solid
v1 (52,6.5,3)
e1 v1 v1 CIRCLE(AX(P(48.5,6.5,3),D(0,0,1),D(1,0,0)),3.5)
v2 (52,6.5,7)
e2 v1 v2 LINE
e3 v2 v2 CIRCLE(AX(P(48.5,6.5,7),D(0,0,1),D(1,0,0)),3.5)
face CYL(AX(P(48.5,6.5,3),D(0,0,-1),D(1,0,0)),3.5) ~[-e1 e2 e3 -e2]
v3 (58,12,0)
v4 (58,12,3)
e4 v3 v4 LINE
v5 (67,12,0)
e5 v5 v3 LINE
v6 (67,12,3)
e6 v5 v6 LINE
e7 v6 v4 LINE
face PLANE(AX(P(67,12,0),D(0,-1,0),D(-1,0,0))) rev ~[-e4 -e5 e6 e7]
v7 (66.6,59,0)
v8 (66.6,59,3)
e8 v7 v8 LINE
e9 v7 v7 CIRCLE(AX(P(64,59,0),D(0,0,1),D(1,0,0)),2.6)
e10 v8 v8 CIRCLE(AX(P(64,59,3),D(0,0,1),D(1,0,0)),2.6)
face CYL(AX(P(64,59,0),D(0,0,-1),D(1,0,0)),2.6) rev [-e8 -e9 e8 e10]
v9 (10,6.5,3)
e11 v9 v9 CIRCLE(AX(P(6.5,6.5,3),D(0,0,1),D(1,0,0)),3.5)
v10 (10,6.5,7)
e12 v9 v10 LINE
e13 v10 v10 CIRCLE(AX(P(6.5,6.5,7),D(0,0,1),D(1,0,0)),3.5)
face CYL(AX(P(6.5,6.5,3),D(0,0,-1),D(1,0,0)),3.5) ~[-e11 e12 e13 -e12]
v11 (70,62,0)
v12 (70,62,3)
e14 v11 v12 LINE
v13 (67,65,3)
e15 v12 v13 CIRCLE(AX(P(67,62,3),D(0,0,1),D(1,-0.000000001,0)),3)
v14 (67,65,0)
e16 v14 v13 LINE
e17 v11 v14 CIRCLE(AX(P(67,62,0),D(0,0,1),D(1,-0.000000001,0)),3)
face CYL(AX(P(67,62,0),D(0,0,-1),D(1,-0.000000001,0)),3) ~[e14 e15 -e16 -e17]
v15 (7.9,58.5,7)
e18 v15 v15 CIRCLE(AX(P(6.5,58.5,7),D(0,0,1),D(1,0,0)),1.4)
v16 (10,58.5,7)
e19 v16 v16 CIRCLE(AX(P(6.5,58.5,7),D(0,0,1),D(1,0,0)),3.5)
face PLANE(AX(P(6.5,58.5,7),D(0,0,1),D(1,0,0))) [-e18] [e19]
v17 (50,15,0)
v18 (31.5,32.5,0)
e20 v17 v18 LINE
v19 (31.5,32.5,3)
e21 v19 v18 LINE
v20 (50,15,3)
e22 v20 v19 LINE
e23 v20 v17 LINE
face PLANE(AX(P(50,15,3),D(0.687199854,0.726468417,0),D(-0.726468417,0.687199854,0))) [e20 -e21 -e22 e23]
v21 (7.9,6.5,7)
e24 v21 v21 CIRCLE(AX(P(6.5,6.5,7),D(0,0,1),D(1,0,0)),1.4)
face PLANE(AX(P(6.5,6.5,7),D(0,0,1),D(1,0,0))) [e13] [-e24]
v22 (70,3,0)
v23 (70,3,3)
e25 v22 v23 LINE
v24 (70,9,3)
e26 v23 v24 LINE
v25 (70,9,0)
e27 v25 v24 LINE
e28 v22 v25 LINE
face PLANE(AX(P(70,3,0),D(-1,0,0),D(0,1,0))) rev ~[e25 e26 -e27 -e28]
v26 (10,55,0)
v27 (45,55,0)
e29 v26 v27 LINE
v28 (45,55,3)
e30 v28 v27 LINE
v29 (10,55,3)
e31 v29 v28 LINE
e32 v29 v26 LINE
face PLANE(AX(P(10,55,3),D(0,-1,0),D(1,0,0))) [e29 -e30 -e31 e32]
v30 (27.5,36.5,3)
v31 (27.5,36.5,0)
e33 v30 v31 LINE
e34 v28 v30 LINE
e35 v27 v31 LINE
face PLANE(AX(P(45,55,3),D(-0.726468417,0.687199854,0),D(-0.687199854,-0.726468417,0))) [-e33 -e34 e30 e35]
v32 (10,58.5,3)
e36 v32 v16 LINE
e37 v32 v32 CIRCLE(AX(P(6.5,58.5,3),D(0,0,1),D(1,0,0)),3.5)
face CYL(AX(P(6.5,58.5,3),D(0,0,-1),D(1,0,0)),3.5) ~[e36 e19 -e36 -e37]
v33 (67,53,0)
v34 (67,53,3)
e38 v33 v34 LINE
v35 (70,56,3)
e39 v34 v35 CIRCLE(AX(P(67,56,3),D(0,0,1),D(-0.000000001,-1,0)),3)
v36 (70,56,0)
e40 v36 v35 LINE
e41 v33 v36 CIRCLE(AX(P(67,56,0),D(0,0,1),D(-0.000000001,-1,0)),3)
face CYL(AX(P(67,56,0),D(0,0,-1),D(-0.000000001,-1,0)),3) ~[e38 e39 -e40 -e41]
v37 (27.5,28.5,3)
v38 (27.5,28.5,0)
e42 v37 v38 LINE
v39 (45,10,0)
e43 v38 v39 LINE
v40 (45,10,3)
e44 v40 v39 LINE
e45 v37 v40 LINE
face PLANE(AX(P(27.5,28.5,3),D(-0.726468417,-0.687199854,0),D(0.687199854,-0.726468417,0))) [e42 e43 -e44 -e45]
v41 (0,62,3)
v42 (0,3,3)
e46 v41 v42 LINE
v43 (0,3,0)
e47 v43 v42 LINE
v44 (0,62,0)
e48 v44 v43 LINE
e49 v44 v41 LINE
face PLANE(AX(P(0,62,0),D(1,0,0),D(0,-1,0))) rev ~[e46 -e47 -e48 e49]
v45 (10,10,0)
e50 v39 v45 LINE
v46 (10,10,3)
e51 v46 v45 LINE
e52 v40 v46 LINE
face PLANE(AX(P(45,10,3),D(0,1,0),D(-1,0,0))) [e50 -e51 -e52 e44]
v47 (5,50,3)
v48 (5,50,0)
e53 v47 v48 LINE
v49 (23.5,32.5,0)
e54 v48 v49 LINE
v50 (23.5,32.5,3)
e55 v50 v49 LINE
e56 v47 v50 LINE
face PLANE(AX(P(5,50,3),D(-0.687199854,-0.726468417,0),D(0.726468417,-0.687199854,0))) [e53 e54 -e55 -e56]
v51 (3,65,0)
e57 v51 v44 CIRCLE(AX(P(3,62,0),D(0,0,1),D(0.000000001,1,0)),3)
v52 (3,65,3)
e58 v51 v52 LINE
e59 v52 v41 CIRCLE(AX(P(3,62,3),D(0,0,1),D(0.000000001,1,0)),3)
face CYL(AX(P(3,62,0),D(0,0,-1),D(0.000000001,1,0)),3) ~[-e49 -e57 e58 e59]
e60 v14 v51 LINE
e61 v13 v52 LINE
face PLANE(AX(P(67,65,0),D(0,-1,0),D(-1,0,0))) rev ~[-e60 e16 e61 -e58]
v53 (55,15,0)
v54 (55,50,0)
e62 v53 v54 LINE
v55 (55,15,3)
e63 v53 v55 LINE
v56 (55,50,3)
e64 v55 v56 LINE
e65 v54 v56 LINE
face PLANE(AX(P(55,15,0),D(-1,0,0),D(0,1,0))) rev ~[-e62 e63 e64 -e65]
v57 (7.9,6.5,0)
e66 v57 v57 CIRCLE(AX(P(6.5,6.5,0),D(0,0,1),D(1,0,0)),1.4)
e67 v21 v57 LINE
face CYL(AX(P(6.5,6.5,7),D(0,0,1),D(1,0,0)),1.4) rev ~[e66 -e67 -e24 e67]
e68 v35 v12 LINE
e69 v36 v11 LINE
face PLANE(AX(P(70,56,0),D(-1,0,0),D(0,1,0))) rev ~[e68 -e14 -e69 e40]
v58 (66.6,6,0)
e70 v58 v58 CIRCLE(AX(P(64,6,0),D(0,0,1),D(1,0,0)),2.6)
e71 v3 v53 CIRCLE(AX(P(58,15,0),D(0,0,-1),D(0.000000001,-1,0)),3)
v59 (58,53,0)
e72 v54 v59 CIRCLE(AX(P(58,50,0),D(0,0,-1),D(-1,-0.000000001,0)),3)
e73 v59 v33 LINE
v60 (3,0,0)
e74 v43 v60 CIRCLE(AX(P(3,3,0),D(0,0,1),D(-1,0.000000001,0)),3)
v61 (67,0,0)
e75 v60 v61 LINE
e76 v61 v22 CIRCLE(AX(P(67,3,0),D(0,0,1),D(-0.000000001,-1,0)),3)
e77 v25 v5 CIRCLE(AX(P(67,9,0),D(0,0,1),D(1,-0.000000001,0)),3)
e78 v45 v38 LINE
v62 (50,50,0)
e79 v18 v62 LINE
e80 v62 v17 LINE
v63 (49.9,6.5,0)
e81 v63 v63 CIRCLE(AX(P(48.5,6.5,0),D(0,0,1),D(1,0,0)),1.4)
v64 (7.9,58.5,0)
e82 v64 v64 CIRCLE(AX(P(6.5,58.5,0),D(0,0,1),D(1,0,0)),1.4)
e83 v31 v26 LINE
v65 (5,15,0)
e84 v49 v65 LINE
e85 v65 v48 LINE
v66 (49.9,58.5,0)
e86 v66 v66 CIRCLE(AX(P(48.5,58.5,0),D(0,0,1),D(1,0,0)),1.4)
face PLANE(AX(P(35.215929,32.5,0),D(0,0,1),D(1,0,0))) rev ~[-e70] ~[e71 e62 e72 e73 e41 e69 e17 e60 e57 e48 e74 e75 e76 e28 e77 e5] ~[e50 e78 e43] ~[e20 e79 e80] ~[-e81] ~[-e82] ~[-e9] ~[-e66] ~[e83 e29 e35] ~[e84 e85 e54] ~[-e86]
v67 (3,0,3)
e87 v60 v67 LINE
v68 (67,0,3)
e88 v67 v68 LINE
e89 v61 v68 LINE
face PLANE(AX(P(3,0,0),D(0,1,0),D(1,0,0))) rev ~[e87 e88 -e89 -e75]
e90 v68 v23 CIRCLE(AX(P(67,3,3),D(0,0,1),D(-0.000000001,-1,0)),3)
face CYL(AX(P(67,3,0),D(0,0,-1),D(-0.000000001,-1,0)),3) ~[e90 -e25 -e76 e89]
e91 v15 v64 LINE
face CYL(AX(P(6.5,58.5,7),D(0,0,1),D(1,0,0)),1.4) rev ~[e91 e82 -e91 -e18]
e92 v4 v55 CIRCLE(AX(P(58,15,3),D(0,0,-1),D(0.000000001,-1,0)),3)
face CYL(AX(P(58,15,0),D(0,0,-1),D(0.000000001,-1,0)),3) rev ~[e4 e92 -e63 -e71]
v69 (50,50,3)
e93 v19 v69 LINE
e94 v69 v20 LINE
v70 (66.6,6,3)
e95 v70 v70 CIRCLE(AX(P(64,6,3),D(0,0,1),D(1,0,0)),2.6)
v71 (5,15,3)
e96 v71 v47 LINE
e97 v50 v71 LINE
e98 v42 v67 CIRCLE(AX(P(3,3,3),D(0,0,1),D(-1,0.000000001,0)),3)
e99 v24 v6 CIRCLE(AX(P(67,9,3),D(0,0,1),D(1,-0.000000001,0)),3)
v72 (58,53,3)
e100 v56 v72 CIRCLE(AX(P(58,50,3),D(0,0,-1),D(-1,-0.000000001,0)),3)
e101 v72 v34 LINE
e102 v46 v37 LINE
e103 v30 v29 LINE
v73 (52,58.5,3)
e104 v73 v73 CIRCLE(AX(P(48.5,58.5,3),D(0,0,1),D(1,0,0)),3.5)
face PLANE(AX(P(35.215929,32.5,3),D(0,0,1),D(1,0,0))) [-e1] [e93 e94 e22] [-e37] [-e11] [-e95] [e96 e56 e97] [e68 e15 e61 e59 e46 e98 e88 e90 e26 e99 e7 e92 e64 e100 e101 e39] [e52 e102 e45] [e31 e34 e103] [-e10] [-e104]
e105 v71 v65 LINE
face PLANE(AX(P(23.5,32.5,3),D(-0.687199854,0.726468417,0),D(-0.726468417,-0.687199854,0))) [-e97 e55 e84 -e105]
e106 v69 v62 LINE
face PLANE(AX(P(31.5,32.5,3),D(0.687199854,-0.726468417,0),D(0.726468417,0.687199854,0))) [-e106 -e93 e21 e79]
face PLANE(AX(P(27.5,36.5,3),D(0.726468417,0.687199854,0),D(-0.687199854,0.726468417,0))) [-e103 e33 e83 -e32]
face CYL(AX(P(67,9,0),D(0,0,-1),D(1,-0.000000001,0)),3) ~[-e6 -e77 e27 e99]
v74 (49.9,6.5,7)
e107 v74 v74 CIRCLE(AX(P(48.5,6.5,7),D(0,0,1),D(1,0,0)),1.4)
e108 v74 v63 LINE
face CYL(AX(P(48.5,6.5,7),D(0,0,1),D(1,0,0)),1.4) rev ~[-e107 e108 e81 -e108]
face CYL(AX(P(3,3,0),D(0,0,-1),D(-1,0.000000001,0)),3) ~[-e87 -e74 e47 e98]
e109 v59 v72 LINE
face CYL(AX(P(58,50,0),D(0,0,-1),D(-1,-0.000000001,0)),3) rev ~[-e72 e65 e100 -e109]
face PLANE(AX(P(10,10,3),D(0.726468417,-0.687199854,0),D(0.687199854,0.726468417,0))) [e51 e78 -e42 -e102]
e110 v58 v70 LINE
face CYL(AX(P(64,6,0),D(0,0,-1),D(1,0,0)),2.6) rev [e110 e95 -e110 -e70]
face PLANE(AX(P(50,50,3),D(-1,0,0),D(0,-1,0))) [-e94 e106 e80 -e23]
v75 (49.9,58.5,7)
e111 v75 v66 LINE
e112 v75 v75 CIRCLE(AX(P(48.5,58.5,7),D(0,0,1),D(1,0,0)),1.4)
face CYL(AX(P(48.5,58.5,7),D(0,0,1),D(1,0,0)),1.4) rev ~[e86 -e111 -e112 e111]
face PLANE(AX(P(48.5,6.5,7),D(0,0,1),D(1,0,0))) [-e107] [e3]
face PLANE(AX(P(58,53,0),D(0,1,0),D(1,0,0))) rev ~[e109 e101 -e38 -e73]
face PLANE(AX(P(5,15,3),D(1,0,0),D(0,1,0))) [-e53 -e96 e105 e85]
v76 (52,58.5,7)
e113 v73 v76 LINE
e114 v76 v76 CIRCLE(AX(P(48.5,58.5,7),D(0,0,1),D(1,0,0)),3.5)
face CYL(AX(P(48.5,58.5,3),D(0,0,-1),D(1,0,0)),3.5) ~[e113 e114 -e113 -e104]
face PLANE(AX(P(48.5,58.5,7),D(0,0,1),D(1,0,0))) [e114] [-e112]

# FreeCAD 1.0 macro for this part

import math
import FreeCAD as App
import Part
import Sketcher


def add_polygon(sketch, points):
    """Adds a closed chain of lines whose ends are joined by coincident constraints."""
    first, n = sketch.GeometryCount, len(points)
    for a, b in zip(points, points[1:] + points[:1]):
        sketch.addGeometry(Part.LineSegment(App.Vector(*a, 0), App.Vector(*b, 0)), False)
    for i in range(n):
        sketch.addConstraint(Sketcher.Constraint("Coincident", first + i, 2, first + (i + 1) % n, 1))

doc = App.newDocument("Part")
params = doc.addObject("Spreadsheet::Sheet", "Params")
for row, (alias, value) in enumerate([
    ("sketch1_radius", "3 mm"),
    ("sketch1_diameter", "5.2 mm"),
    ("sketch1_width", "64 mm"),
    ("sketch1_width2", "9 mm"),
    ("sketch1_height", "6 mm"),
    ("pad1_length", "3 mm"),
    ("sketch2_diameter", "7 mm"),
    ("pad2_length", "4 mm"),
    ("sketch3_width", "35 mm"),
    ("pocket1_length", "3 mm"),
    ("sketch4_diameter", "2.8 mm"),
], start=1):
    params.set(f"A{row}", alias)
    params.set(f"B{row}", "=" + value)
    params.setAlias(f"B{row}", alias)

body = doc.addObject("PartDesign::Body", "Body")

# Sketch on XY plane
sketch1 = body.newObject("Sketcher::SketchObject", "Sketch")
sketch1.AttachmentSupport = (doc.getObject("XY_Plane"), [""])
sketch1.MapMode = "FlatFace"
sketch1.addGeometry(Part.ArcOfCircle(Part.Circle(App.Vector(3, 3, 0), App.Vector(0, 0, 1), 3), math.radians(180), math.radians(270)), False)
sketch1.addGeometry(Part.LineSegment(App.Vector(3, 0, 0), App.Vector(67, 0, 0)), False)
sketch1.addGeometry(Part.ArcOfCircle(Part.Circle(App.Vector(67, 3, 0), App.Vector(0, 0, 1), 3), math.radians(-90), math.radians(0)), False)
sketch1.addGeometry(Part.LineSegment(App.Vector(70, 3, 0), App.Vector(70, 9, 0)), False)
sketch1.addGeometry(Part.ArcOfCircle(Part.Circle(App.Vector(67, 9, 0), App.Vector(0, 0, 1), 3), math.radians(0), math.radians(90)), False)
sketch1.addGeometry(Part.LineSegment(App.Vector(67, 12, 0), App.Vector(58, 12, 0)), False)
sketch1.addGeometry(Part.ArcOfCircle(Part.Circle(App.Vector(58, 15, 0), App.Vector(0, 0, 1), 3), math.radians(180), math.radians(270)), False)
sketch1.addGeometry(Part.LineSegment(App.Vector(55, 15, 0), App.Vector(55, 50, 0)), False)
sketch1.addGeometry(Part.ArcOfCircle(Part.Circle(App.Vector(58, 50, 0), App.Vector(0, 0, 1), 3), math.radians(90), math.radians(180)), False)
sketch1.addGeometry(Part.LineSegment(App.Vector(58, 53, 0), App.Vector(67, 53, 0)), False)
sketch1.addGeometry(Part.ArcOfCircle(Part.Circle(App.Vector(67, 56, 0), App.Vector(0, 0, 1), 3), math.radians(-90), math.radians(0)), False)
sketch1.addGeometry(Part.LineSegment(App.Vector(70, 56, 0), App.Vector(70, 62, 0)), False)
sketch1.addGeometry(Part.ArcOfCircle(Part.Circle(App.Vector(67, 62, 0), App.Vector(0, 0, 1), 3), math.radians(0), math.radians(90)), False)
sketch1.addGeometry(Part.LineSegment(App.Vector(67, 65, 0), App.Vector(3, 65, 0)), False)
sketch1.addGeometry(Part.ArcOfCircle(Part.Circle(App.Vector(3, 62, 0), App.Vector(0, 0, 1), 3), math.radians(90), math.radians(180)), False)
sketch1.addGeometry(Part.LineSegment(App.Vector(0, 62, 0), App.Vector(0, 3, 0)), False)
sketch1.addGeometry(Part.Circle(App.Vector(64, 6, 0), App.Vector(0, 0, 1), 2.6), False)
sketch1.addGeometry(Part.Circle(App.Vector(64, 59, 0), App.Vector(0, 0, 1), 2.6), False)
sketch1.addConstraint(Sketcher.Constraint("Tangent", 0, 2, 1, 1))
sketch1.addConstraint(Sketcher.Constraint("Tangent", 1, 2, 2, 1))
sketch1.addConstraint(Sketcher.Constraint("Tangent", 2, 2, 3, 1))
sketch1.addConstraint(Sketcher.Constraint("Tangent", 3, 2, 4, 1))
sketch1.addConstraint(Sketcher.Constraint("Tangent", 4, 2, 5, 1))
sketch1.addConstraint(Sketcher.Constraint("Tangent", 5, 2, 6, 2))
sketch1.addConstraint(Sketcher.Constraint("Tangent", 6, 1, 7, 1))
sketch1.addConstraint(Sketcher.Constraint("Tangent", 7, 2, 8, 2))
sketch1.addConstraint(Sketcher.Constraint("Tangent", 8, 1, 9, 1))
sketch1.addConstraint(Sketcher.Constraint("Tangent", 9, 2, 10, 1))
sketch1.addConstraint(Sketcher.Constraint("Tangent", 10, 2, 11, 1))
sketch1.addConstraint(Sketcher.Constraint("Tangent", 11, 2, 12, 1))
sketch1.addConstraint(Sketcher.Constraint("Tangent", 12, 2, 13, 1))
sketch1.addConstraint(Sketcher.Constraint("Tangent", 13, 2, 14, 1))
sketch1.addConstraint(Sketcher.Constraint("Tangent", 14, 2, 15, 1))
sketch1.addConstraint(Sketcher.Constraint("Tangent", 15, 2, 0, 1))
sketch1.addConstraint(Sketcher.Constraint("Horizontal", 1))
sketch1.addConstraint(Sketcher.Constraint("Vertical", 3))
sketch1.addConstraint(Sketcher.Constraint("Horizontal", 5))
sketch1.addConstraint(Sketcher.Constraint("Vertical", 7))
sketch1.addConstraint(Sketcher.Constraint("Horizontal", 9))
sketch1.addConstraint(Sketcher.Constraint("Vertical", 11))
sketch1.addConstraint(Sketcher.Constraint("Horizontal", 13))
sketch1.addConstraint(Sketcher.Constraint("Vertical", 15))
sketch1.addConstraint(Sketcher.Constraint("Equal", 0, 2))
sketch1.addConstraint(Sketcher.Constraint("Equal", 2, 4))
sketch1.addConstraint(Sketcher.Constraint("Equal", 4, 6))
sketch1.addConstraint(Sketcher.Constraint("Equal", 6, 8))
sketch1.addConstraint(Sketcher.Constraint("Equal", 8, 10))
sketch1.addConstraint(Sketcher.Constraint("Equal", 10, 12))
sketch1.addConstraint(Sketcher.Constraint("Equal", 12, 14))
sketch1.addConstraint(Sketcher.Constraint("Equal", 16, 17))
sketch1.addConstraint(Sketcher.Constraint("PointOnObject", 0, 2, -1))
sketch1.addConstraint(Sketcher.Constraint("PointOnObject", 14, 2, -2))
sketch1.addConstraint(Sketcher.Constraint("Vertical", 4, 3, 10, 3))
sketch1.addConstraint(Sketcher.Constraint("Vertical", 16, 3, 17, 3))
sketch1.addConstraint(Sketcher.Constraint("Equal", 3, 11))
sketch1.addConstraint(Sketcher.Constraint("Radius", 0, 3.0))
sketch1.addConstraint(Sketcher.Constraint("Diameter", 16, 5.2))
sketch1.addConstraint(Sketcher.Constraint("DistanceX", 1, 1, 1, 2, 64.0))
sketch1.addConstraint(Sketcher.Constraint("DistanceX", 5, 2, 5, 1, 9.0))
sketch1.addConstraint(Sketcher.Constraint("DistanceY", 3, 1, 3, 2, 6.0))
sketch1.addConstraint(Sketcher.Constraint("DistanceY", 7, 1, 7, 2, 35.0))
sketch1.addConstraint(Sketcher.Constraint("DistanceX", -1, 1, 16, 3, 64.0))
sketch1.addConstraint(Sketcher.Constraint("DistanceY", -1, 1, 16, 3, 6.0))
sketch1.addConstraint(Sketcher.Constraint("DistanceY", -1, 1, 17, 3, 59.0))
sketch1.setExpression("Constraints[37]", "Params.sketch1_radius")
sketch1.setExpression("Constraints[38]", "Params.sketch1_diameter")
sketch1.setExpression("Constraints[39]", "Params.sketch1_width")
sketch1.setExpression("Constraints[40]", "Params.sketch1_width2")
sketch1.setExpression("Constraints[41]", "Params.sketch1_height")
pad1 = body.newObject("PartDesign::Pad", "Pad")
pad1.Profile = sketch1
pad1.setExpression("Length", "Params.pad1_length")

# Sketch on XY plane
sketch2 = body.newObject("Sketcher::SketchObject", "Sketch001")
sketch2.AttachmentSupport = (doc.getObject("XY_Plane"), [""])
sketch2.MapMode = "FlatFace"
sketch2.AttachmentOffset = App.Placement(App.Vector(0, 0, 3), App.Rotation())
sketch2.addGeometry(Part.Circle(App.Vector(6.5, 58.5, 0), App.Vector(0, 0, 1), 3.5), False)
sketch2.addGeometry(Part.Circle(App.Vector(48.5, 58.5, 0), App.Vector(0, 0, 1), 3.5), False)
sketch2.addGeometry(Part.Circle(App.Vector(6.5, 6.5, 0), App.Vector(0, 0, 1), 3.5), False)
sketch2.addGeometry(Part.Circle(App.Vector(48.5, 6.5, 0), App.Vector(0, 0, 1), 3.5), False)
sketch2.addConstraint(Sketcher.Constraint("Equal", 0, 1))
sketch2.addConstraint(Sketcher.Constraint("Equal", 1, 2))
sketch2.addConstraint(Sketcher.Constraint("Equal", 2, 3))
sketch2.addConstraint(Sketcher.Constraint("Horizontal", 0, 3, 1, 3))
sketch2.addConstraint(Sketcher.Constraint("Horizontal", 2, 3, 3, 3))
sketch2.addConstraint(Sketcher.Constraint("Vertical", 0, 3, 2, 3))
sketch2.addConstraint(Sketcher.Constraint("Vertical", 1, 3, 3, 3))
sketch2.addConstraint(Sketcher.Constraint("Diameter", 0, 7.0))
sketch2.addConstraint(Sketcher.Constraint("DistanceX", 0, 3, 1, 3, 42.0))
sketch2.addConstraint(Sketcher.Constraint("DistanceY", 2, 3, 0, 3, 52.0))
sketch2.addConstraint(Sketcher.Constraint("DistanceX", -1, 1, 0, 3, 6.5))
sketch2.addConstraint(Sketcher.Constraint("DistanceY", -1, 1, 0, 3, 58.5))
sketch2.setExpression("Constraints[7]", "Params.sketch2_diameter")
pad2 = body.newObject("PartDesign::Pad", "Pad001")
pad2.Profile = sketch2
pad2.setExpression("Length", "Params.pad2_length")

# Sketch on XY plane
sketch3 = body.newObject("Sketcher::SketchObject", "Sketch002")
sketch3.AttachmentSupport = (doc.getObject("XY_Plane"), [""])
sketch3.MapMode = "FlatFace"
sketch3.AttachmentOffset = App.Placement(App.Vector(0, 0, 3), App.Rotation())
add_polygon(sketch3, [(45, 55), (10, 55), (28, 36)])  # lines 0-2
add_polygon(sketch3, [(50, 15), (50, 50), (32, 32)])  # lines 3-5
add_polygon(sketch3, [(10, 10), (45, 10), (28, 28)])  # lines 6-8
add_polygon(sketch3, [(5, 50), (5, 15), (24, 32)])  # lines 9-11
sketch3.addConstraint(Sketcher.Constraint("Horizontal", 0))
sketch3.addConstraint(Sketcher.Constraint("Vertical", 3))
sketch3.addConstraint(Sketcher.Constraint("Horizontal", 6))
sketch3.addConstraint(Sketcher.Constraint("Vertical", 9))
sketch3.addConstraint(Sketcher.Constraint("Perpendicular", 1, 4))
sketch3.addConstraint(Sketcher.Constraint("Perpendicular", 2, 5))
sketch3.addConstraint(Sketcher.Constraint("Perpendicular", 4, 7))
sketch3.addConstraint(Sketcher.Constraint("Perpendicular", 5, 8))
sketch3.addConstraint(Sketcher.Constraint("Perpendicular", 7, 10))
sketch3.addConstraint(Sketcher.Constraint("Perpendicular", 8, 11))
sketch3.addConstraint(Sketcher.Constraint("Horizontal", 5, 2, 9, 2))
sketch3.addConstraint(Sketcher.Constraint("Horizontal", 4, 2, 10, 2))
sketch3.addConstraint(Sketcher.Constraint("Horizontal", 3, 2, 11, 2))
sketch3.addConstraint(Sketcher.Constraint("Vertical", 2, 2, 6, 2))
sketch3.addConstraint(Sketcher.Constraint("Vertical", 1, 2, 7, 2))
sketch3.addConstraint(Sketcher.Constraint("Equal", 6, 3))
sketch3.addConstraint(Sketcher.Constraint("DistanceX", 0, 2, 0, 1, 35.0))
sketch3.addConstraint(Sketcher.Constraint("DistanceX", -1, 1, 0, 2, 10.0))
sketch3.addConstraint(Sketcher.Constraint("DistanceY", -1, 1, 0, 2, 55.0))
sketch3.addConstraint(Sketcher.Constraint("DistanceX", -1, 1, 3, 2, 50.0))
sketch3.addConstraint(Sketcher.Constraint("DistanceY", -1, 1, 3, 2, 50.0))
sketch3.addConstraint(Sketcher.Constraint("DistanceY", -1, 1, 6, 2, 10.0))
sketch3.addConstraint(Sketcher.Constraint("DistanceX", -1, 1, 9, 2, 5.0))
sketch3.addConstraint(Sketcher.Constraint("DistanceX", 1, 2, 4, 2, 4.0))
sketch3.setExpression("Constraints[28]", "Params.sketch3_width")
pocket1 = body.newObject("PartDesign::Pocket", "Pocket")
pocket1.Profile = sketch3
pocket1.setExpression("Length", "Params.pocket1_length")

# Sketch on XY plane
sketch4 = body.newObject("Sketcher::SketchObject", "Sketch003")
sketch4.AttachmentSupport = (doc.getObject("XY_Plane"), [""])
sketch4.MapMode = "FlatFace"
sketch4.AttachmentOffset = App.Placement(App.Vector(0, 0, 7), App.Rotation())
sketch4.addGeometry(Part.Circle(App.Vector(6.5, 58.5, 0), App.Vector(0, 0, 1), 1.4), False)
sketch4.addGeometry(Part.Circle(App.Vector(48.5, 6.5, 0), App.Vector(0, 0, 1), 1.4), False)
sketch4.addGeometry(Part.Circle(App.Vector(6.5, 6.5, 0), App.Vector(0, 0, 1), 1.4), False)
sketch4.addGeometry(Part.Circle(App.Vector(48.5, 58.5, 0), App.Vector(0, 0, 1), 1.4), False)
sketch4.addConstraint(Sketcher.Constraint("Equal", 0, 1))
sketch4.addConstraint(Sketcher.Constraint("Equal", 1, 2))
sketch4.addConstraint(Sketcher.Constraint("Equal", 2, 3))
sketch4.addConstraint(Sketcher.Constraint("Horizontal", 1, 3, 2, 3))
sketch4.addConstraint(Sketcher.Constraint("Horizontal", 0, 3, 3, 3))
sketch4.addConstraint(Sketcher.Constraint("Vertical", 0, 3, 2, 3))
sketch4.addConstraint(Sketcher.Constraint("Vertical", 1, 3, 3, 3))
sketch4.addConstraint(Sketcher.Constraint("Diameter", 0, 2.8))
sketch4.addConstraint(Sketcher.Constraint("DistanceX", 0, 3, 1, 3, 42.0))
sketch4.addConstraint(Sketcher.Constraint("DistanceY", 1, 3, 0, 3, 52.0))
sketch4.addConstraint(Sketcher.Constraint("DistanceX", -1, 1, 0, 3, 6.5))
sketch4.addConstraint(Sketcher.Constraint("DistanceY", -1, 1, 0, 3, 58.5))
sketch4.setExpression("Constraints[7]", "Params.sketch4_diameter")
pocket2 = body.newObject("PartDesign::Pocket", "Pocket001")
pocket2.Profile = sketch4
pocket2.Type = "ThroughAll"

doc.recompute()
